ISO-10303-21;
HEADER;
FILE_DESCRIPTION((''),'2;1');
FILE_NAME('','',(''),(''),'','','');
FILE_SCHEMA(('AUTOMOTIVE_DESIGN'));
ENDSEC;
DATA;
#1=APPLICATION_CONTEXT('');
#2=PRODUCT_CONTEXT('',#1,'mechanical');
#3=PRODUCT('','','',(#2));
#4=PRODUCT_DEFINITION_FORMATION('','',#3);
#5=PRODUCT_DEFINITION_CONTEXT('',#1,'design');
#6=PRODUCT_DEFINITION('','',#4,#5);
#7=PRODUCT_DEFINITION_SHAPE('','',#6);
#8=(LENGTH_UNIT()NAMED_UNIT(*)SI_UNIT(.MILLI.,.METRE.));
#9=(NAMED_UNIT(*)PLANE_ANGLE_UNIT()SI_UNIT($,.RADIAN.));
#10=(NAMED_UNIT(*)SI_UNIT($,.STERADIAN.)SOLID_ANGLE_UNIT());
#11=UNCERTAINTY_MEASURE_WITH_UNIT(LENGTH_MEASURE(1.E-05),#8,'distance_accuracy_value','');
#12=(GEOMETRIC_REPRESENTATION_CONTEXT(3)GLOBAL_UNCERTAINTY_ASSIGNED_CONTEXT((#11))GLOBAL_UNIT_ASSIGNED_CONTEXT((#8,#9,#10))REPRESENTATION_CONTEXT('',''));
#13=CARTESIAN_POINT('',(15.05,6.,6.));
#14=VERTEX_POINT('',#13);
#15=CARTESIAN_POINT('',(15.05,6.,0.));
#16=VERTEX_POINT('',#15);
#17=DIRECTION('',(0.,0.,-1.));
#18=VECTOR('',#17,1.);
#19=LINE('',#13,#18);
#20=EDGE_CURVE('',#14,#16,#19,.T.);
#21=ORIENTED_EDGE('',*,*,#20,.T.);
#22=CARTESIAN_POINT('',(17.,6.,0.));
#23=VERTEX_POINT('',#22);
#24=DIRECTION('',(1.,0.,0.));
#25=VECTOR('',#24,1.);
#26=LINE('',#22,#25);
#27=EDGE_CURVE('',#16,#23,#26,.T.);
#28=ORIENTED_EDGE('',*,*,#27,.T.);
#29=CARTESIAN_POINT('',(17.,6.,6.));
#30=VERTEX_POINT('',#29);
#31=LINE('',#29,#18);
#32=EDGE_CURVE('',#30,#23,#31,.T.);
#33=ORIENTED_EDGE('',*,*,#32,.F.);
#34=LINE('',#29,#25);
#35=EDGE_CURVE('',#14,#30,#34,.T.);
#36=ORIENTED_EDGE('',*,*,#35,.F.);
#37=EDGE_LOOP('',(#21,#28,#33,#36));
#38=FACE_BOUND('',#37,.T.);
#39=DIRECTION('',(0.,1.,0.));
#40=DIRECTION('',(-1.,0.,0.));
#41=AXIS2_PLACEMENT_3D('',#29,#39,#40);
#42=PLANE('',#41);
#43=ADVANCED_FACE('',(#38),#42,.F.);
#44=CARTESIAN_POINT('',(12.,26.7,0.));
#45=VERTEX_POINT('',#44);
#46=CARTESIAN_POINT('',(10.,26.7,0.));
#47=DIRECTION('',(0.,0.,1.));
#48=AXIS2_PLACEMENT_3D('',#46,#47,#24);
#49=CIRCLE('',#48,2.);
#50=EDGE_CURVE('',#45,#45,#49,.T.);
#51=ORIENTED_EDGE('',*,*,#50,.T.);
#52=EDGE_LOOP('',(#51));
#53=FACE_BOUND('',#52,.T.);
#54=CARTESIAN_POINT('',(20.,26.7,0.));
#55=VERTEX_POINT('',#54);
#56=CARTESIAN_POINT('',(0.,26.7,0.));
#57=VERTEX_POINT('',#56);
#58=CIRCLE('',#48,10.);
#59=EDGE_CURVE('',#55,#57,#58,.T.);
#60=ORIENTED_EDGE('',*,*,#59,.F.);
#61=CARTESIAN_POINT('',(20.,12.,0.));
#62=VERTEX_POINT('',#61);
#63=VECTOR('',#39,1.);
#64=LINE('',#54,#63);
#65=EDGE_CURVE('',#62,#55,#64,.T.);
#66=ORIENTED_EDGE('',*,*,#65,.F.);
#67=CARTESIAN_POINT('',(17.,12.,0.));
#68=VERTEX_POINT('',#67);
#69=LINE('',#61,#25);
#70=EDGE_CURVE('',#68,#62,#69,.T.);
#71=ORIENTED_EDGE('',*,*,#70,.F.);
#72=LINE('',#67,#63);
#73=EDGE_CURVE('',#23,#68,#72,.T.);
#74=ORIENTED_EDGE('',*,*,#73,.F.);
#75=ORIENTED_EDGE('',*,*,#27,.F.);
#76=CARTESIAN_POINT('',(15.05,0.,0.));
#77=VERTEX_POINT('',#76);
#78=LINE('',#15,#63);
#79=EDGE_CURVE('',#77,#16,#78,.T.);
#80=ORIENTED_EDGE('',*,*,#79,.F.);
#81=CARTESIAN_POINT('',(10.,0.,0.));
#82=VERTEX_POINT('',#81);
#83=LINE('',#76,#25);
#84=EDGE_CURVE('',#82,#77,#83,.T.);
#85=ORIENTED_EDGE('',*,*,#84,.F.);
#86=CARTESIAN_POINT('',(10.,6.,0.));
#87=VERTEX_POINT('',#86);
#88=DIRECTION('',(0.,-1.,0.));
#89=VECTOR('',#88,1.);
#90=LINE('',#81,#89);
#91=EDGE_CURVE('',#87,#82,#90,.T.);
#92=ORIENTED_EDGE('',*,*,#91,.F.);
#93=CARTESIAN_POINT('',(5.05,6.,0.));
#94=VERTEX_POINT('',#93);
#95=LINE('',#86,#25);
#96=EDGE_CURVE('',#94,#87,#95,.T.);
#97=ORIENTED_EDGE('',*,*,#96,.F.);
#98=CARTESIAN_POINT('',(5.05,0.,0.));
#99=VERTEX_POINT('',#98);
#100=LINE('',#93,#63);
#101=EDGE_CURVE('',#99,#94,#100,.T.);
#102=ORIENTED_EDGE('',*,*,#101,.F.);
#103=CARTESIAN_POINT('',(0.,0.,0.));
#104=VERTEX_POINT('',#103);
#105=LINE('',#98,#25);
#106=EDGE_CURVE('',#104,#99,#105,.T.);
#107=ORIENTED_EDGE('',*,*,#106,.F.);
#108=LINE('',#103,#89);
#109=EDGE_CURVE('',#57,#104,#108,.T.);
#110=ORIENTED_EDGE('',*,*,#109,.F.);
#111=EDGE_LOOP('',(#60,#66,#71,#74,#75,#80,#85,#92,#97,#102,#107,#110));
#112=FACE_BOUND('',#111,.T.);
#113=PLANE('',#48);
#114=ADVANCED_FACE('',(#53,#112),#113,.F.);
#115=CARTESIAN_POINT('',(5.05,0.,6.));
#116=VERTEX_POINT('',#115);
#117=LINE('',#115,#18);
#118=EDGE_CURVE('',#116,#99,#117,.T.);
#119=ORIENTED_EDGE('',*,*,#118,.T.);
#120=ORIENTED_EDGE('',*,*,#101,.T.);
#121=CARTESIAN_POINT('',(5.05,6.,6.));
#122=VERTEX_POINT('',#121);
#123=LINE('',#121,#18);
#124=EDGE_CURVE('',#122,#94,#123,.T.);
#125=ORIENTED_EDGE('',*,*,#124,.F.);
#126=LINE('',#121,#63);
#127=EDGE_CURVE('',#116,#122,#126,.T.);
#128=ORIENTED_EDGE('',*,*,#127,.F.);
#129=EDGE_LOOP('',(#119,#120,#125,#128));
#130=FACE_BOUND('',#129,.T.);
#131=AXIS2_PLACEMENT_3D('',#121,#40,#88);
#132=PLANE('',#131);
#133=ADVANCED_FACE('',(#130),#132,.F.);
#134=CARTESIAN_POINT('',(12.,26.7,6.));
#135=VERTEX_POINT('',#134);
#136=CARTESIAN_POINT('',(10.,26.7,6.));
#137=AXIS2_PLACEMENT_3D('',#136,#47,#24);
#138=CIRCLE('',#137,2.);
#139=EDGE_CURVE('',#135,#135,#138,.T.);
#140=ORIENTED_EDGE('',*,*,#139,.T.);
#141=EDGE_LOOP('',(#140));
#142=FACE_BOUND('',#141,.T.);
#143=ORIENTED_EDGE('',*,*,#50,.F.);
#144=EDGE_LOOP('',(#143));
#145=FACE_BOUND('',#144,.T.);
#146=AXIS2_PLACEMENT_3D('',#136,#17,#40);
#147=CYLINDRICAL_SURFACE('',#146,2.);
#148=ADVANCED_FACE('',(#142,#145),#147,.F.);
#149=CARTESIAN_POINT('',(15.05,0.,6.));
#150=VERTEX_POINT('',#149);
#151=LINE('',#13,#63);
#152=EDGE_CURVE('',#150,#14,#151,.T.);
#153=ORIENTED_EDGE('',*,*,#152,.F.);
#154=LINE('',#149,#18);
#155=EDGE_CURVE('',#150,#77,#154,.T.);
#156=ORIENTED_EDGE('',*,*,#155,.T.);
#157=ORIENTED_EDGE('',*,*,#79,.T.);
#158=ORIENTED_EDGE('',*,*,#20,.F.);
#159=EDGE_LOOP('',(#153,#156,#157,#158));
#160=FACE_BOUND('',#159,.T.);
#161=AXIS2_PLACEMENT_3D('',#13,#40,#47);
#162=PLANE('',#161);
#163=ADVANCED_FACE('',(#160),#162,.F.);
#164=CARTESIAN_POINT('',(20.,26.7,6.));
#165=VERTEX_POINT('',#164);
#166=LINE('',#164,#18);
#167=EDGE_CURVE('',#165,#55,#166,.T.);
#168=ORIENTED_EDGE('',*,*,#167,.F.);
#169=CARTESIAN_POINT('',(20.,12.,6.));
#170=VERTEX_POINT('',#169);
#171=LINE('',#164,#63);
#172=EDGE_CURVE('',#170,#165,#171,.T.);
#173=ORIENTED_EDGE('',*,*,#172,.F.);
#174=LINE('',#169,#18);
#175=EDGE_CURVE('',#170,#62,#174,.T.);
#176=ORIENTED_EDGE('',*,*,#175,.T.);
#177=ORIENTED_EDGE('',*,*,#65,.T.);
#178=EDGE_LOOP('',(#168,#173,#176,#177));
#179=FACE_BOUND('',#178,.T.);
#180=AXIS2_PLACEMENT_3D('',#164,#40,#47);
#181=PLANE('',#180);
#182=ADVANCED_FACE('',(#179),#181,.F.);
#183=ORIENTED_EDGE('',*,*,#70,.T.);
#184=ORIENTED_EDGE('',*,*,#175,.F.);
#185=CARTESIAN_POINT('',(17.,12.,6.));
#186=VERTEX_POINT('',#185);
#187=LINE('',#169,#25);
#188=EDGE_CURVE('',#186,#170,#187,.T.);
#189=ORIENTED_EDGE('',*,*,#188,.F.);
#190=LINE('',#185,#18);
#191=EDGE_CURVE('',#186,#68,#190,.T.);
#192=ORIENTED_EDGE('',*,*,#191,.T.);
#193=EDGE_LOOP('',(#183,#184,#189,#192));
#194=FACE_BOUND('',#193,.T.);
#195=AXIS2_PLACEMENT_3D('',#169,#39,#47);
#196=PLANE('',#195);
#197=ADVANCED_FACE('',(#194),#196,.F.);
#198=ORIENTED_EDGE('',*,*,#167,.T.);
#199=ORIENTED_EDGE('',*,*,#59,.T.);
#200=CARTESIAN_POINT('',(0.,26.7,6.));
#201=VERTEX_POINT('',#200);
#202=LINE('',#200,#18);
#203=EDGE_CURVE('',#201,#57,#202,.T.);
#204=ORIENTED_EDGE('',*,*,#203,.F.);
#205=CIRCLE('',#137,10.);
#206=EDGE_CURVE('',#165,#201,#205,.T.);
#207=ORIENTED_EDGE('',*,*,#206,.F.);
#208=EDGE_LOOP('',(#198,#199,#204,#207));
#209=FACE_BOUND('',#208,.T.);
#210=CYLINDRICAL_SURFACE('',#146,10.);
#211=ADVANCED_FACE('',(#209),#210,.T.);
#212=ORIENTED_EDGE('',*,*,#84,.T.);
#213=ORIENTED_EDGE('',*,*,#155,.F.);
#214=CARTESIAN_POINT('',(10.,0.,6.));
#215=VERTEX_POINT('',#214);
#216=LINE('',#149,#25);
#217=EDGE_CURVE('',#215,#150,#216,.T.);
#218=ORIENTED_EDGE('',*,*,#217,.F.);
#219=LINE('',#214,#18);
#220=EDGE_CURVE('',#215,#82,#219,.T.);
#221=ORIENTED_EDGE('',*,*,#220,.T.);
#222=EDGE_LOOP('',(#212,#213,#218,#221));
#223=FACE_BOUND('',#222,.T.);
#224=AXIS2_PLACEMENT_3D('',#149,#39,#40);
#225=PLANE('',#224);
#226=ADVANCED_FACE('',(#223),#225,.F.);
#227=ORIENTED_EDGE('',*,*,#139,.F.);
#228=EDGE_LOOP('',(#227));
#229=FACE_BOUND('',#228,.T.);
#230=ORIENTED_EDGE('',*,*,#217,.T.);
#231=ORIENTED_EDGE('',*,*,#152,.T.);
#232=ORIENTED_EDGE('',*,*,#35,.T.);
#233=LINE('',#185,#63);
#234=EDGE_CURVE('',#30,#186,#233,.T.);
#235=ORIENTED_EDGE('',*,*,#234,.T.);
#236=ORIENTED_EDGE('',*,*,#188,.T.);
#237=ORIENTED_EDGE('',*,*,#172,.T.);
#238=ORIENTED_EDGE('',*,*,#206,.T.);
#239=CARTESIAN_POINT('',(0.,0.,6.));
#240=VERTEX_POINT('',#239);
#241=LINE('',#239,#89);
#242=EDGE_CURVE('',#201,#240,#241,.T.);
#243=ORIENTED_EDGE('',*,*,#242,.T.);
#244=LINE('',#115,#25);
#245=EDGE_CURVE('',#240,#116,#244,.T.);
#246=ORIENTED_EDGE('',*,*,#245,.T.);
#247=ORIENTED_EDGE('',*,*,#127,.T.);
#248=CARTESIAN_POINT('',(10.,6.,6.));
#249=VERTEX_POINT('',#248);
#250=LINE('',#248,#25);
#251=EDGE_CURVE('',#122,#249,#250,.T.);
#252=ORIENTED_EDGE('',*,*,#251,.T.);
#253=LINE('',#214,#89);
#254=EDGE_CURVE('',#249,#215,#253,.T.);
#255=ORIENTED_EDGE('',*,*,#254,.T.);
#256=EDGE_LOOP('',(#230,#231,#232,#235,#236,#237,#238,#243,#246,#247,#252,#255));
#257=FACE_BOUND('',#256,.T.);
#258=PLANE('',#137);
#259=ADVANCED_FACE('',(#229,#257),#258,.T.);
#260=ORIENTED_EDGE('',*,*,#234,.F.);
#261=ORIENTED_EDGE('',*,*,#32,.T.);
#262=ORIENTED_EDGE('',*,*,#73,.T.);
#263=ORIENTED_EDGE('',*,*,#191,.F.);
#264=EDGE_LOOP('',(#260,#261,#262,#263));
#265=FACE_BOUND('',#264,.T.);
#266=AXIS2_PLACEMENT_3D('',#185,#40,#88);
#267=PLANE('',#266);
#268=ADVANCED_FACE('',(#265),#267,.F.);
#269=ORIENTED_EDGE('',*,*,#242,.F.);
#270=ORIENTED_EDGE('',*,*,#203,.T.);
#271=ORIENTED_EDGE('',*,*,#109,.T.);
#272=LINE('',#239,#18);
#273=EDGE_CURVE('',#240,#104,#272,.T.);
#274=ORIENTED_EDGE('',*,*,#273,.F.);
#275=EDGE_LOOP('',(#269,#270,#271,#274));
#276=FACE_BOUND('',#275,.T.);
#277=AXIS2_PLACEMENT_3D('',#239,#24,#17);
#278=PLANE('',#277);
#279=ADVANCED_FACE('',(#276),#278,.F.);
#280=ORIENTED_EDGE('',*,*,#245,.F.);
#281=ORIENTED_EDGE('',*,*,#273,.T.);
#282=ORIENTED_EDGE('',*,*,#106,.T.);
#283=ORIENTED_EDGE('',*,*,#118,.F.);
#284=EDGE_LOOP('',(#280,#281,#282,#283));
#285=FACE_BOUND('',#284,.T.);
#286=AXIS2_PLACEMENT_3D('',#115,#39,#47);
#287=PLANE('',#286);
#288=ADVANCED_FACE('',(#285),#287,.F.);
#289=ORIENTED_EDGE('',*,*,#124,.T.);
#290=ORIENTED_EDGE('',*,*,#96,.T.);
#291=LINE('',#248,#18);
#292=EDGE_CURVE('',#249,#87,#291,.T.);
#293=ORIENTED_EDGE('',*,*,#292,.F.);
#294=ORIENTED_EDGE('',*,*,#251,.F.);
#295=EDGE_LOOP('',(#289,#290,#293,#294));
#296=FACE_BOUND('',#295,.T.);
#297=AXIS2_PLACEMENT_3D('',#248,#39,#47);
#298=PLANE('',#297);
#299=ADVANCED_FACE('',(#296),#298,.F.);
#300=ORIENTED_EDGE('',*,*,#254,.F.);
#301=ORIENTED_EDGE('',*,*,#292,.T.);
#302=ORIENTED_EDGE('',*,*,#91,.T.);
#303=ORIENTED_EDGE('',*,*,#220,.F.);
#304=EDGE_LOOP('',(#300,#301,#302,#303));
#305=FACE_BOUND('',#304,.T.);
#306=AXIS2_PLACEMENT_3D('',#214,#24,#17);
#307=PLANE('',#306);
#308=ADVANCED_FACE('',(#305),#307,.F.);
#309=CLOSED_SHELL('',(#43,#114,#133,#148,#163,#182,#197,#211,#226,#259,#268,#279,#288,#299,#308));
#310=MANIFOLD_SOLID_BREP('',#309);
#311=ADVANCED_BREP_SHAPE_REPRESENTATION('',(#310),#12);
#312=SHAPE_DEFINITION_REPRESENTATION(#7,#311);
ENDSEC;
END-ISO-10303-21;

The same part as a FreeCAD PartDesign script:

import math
import FreeCAD as App
import Part
import Sketcher

doc = App.newDocument("Part")
body = doc.addObject("PartDesign::Body", "Body")

sketch1 = body.newObject("Sketcher::SketchObject", "Sketch")
sketch1.AttachmentSupport = (doc.getObject("XY_Plane"), [""])
sketch1.MapMode = "FlatFace"
sketch1.addGeometry([
    Part.LineSegment(App.Vector(0, 26.7, 0), App.Vector(0, 0, 0)),
    Part.LineSegment(App.Vector(0, 0, 0), App.Vector(5.05, 0, 0)),
    Part.LineSegment(App.Vector(5.05, 0, 0), App.Vector(5.05, 6, 0)),
    Part.LineSegment(App.Vector(5.05, 6, 0), App.Vector(10, 6, 0)),
    Part.LineSegment(App.Vector(10, 6, 0), App.Vector(10, 0, 0)),
    Part.LineSegment(App.Vector(10, 0, 0), App.Vector(15.05, 0, 0)),
    Part.LineSegment(App.Vector(15.05, 0, 0), App.Vector(15.05, 6, 0)),
    Part.LineSegment(App.Vector(15.05, 6, 0), App.Vector(17, 6, 0)),
    Part.LineSegment(App.Vector(17, 6, 0), App.Vector(17, 12, 0)),
    Part.LineSegment(App.Vector(17, 12, 0), App.Vector(20, 12, 0)),
    Part.LineSegment(App.Vector(20, 12, 0), App.Vector(20, 26.7, 0)),
    Part.ArcOfCircle(Part.Circle(App.Vector(10, 26.7, 0), App.Vector(0, 0, 1), 10), math.radians(0), math.radians(180)),
    Part.Circle(App.Vector(10, 26.7, 0), App.Vector(0, 0, 1), 2),
], False)
sketch1.addConstraint([
    Sketcher.Constraint("Coincident", 0, 2, 1, 1),
    Sketcher.Constraint("Coincident", 1, 2, 2, 1),
    Sketcher.Constraint("Coincident", 2, 2, 3, 1),
    Sketcher.Constraint("Coincident", 3, 2, 4, 1),
    Sketcher.Constraint("Coincident", 4, 2, 5, 1),
    Sketcher.Constraint("Coincident", 5, 2, 6, 1),
    Sketcher.Constraint("Coincident", 6, 2, 7, 1),
    Sketcher.Constraint("Coincident", 7, 2, 8, 1),
    Sketcher.Constraint("Coincident", 8, 2, 9, 1),
    Sketcher.Constraint("Coincident", 9, 2, 10, 1),
    Sketcher.Constraint("Tangent", 10, 2, 11, 1),
    Sketcher.Constraint("Tangent", 11, 2, 0, 1),
    Sketcher.Constraint("Vertical", 0),
    Sketcher.Constraint("Horizontal", 1),
    Sketcher.Constraint("Vertical", 2),
    Sketcher.Constraint("Horizontal", 3),
    Sketcher.Constraint("Vertical", 4),
    Sketcher.Constraint("Horizontal", 5),
    Sketcher.Constraint("Vertical", 6),
    Sketcher.Constraint("Horizontal", 7),
    Sketcher.Constraint("Vertical", 8),
    Sketcher.Constraint("Horizontal", 9),
    Sketcher.Constraint("Vertical", 10),
    Sketcher.Constraint("Coincident", 0, 2, -1, 1),
    Sketcher.Constraint("Coincident", 12, 3, 11, 3),
    Sketcher.Constraint("PointOnObject", 4, 2, -1),
    Sketcher.Constraint("Horizontal", 3, 2, 6, 2),
    Sketcher.Constraint("Vertical", 12, 3, 3, 2),
    Sketcher.Constraint("Equal", 1, 5),
    Sketcher.Constraint("Equal", 6, 8),
    Sketcher.Constraint("Diameter", 12, 4.0),
    Sketcher.Constraint("Radius", 11, 10.0),
    Sketcher.Constraint("DistanceX", 9, 1, 9, 2, 3.0),
    Sketcher.Constraint("DistanceY", 2, 1, 2, 2, 6.0),
    Sketcher.Constraint("DistanceY", 0, 2, 0, 1, 26.7),
    Sketcher.Constraint("DistanceX", 1, 1, 1, 2, 5.05),
])
pad1 = body.newObject("PartDesign::Pad", "Pad")
pad1.Profile = sketch1
pad1.Length = 6

doc.recompute()
